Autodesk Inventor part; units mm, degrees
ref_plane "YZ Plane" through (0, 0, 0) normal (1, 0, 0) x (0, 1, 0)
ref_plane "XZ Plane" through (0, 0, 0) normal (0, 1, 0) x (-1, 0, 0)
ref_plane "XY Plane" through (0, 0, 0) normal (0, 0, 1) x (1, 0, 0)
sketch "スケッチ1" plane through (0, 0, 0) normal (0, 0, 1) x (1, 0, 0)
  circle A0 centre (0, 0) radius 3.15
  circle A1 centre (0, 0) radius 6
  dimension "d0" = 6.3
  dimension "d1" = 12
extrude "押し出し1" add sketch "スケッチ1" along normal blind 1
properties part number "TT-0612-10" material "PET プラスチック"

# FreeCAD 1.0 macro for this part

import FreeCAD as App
import Part
import Sketcher
from FreeCAD import Vector

doc = App.newDocument("Part")
body = doc.addObject("PartDesign::Body", "Body")

sketch1 = body.newObject("Sketcher::SketchObject", "Sketch")
sketch1.AttachmentSupport = (doc.getObject("XY_Plane"), [""])
sketch1.MapMode = "FlatFace"
sketch1.addGeometry([
    Part.Circle(Vector(0, 0, 0), Vector(0, 0, 1), 6),
    Part.Circle(Vector(0, 0, 0), Vector(0, 0, 1), 3.15),
], False)
sketch1.addConstraint([
    Sketcher.Constraint("Coincident", 0, 3, -1, 1),
    Sketcher.Constraint("Coincident", 1, 3, -1, 1),
    Sketcher.Constraint("Diameter", 0, 12.0),
    Sketcher.Constraint("Diameter", 1, 6.3),
])
pad1 = body.newObject("PartDesign::Pad", "Pad")
pad1.Profile = sketch1
pad1.Length = 1

doc.recompute()
